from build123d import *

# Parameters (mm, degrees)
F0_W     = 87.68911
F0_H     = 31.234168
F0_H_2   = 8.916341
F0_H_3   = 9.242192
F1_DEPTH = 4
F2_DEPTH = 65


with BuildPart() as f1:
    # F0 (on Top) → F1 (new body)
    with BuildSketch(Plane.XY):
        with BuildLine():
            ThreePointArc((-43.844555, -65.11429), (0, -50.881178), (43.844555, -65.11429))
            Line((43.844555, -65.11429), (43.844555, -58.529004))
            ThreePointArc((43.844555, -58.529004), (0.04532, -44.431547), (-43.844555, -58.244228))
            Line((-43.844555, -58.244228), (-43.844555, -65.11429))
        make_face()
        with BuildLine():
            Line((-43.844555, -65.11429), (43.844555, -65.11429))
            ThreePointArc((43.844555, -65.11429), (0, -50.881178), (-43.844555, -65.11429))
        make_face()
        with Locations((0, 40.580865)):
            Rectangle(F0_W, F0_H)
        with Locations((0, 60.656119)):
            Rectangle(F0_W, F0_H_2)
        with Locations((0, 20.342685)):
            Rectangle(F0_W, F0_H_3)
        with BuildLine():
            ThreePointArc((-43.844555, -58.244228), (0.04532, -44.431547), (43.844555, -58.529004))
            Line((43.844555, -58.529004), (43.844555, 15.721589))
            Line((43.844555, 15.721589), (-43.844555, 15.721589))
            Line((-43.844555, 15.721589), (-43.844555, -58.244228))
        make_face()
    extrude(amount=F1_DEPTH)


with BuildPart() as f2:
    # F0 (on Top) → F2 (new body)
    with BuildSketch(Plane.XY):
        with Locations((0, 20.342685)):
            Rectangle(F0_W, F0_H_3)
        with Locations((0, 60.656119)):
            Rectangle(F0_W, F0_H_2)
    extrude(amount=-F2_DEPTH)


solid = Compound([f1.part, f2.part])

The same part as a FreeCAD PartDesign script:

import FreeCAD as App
import Part
import Sketcher
from FreeCAD import Vector
Q = App.Units.Quantity


def add_polygon(sketch, points):
    """Adds a closed chain of lines whose ends are joined by coincident constraints."""
    first, n = sketch.GeometryCount, len(points)
    for a, b in zip(points, points[1:] + points[:1]):
        sketch.addGeometry(Part.LineSegment(App.Vector(*a, 0), App.Vector(*b, 0)), False)
    for i in range(n):
        sketch.addConstraint(Sketcher.Constraint("Coincident", first + i, 2, first + (i + 1) % n, 1))

doc = App.newDocument("Part")
params = doc.addObject("Spreadsheet::Sheet", "Params")
for row, (alias, value) in enumerate([
    ("pad1_length", "4 mm"),
    ("pad2_length", "65 mm"),
], start=1):
    params.set(f"A{row}", alias)
    params.set(f"B{row}", "=" + value)
    params.setAlias(f"B{row}", alias)

body = doc.addObject("PartDesign::Body", "Body")

# Sketch on XY plane
sketch1 = doc.addObject("Sketcher::SketchObject", "Sketch")
body.addObject(sketch1)
sketch1.AttachmentSupport = (doc.XY_Plane, [""])
sketch1.MapMode = "FlatFace"
add_polygon(sketch1, [(-43.844555, -65.11429), (43.844555, -65.11429), (43.844555, 65.114289), (-43.844555, 65.114289)])  # lines 0-3
sketch1.addConstraint([
    Sketcher.Constraint("Horizontal", 0),
    Sketcher.Constraint("Vertical", 1),
    Sketcher.Constraint("Horizontal", 2),
    Sketcher.Constraint("Vertical", 3),
    Sketcher.Constraint("Symmetric", 0, 2, 2, 2, -1, 1),
    Sketcher.Constraint("DistanceX", 0, 1, 0, 2, Q("87.68911 mm")),
    Sketcher.Constraint("DistanceY", 1, 1, 1, 2, Q("130.228579 mm")),
])
pad1 = doc.addObject("PartDesign::Pad", "Pad")
body.addObject(pad1)
pad1.Profile = sketch1
pad1.setExpression("Length", "Params.pad1_length")
body2 = doc.addObject("PartDesign::Body", "Body001")
body2.AllowCompound = True

# Sketch on XY plane
sketch2 = doc.addObject("Sketcher::SketchObject", "Sketch001")
body2.addObject(sketch2)
sketch2.AttachmentSupport = (doc.getObject("XY_Plane001"), [""])
sketch2.MapMode = "FlatFace"
add_polygon(sketch2, [(-43.844555, 24.963781), (-43.844555, 15.721589), (43.844555, 15.721589), (43.844555, 24.963781)])  # lines 0-3
add_polygon(sketch2, [(-43.844555, 65.114289), (-43.844555, 56.197949), (43.844555, 56.197949), (43.844555, 65.114289)])  # lines 4-7
sketch2.addConstraint([
    Sketcher.Constraint("Vertical", 0),
    Sketcher.Constraint("Horizontal", 1),
    Sketcher.Constraint("Vertical", 2),
    Sketcher.Constraint("Horizontal", 3),
    Sketcher.Constraint("Vertical", 4),
    Sketcher.Constraint("Horizontal", 5),
    Sketcher.Constraint("Vertical", 6),
    Sketcher.Constraint("Horizontal", 7),
    Sketcher.Constraint("Vertical", 3, 2, 4, 2),
    Sketcher.Constraint("Vertical", 2, 2, 5, 2),
    Sketcher.Constraint("DistanceX", 1, 1, 1, 2, Q("87.68911 mm")),
    Sketcher.Constraint("DistanceY", 4, 2, 4, 1, Q("8.916341 mm")),
    Sketcher.Constraint("DistanceY", 1, 2, 6, 2, Q("49.3927 mm")),
    Sketcher.Constraint("DistanceY", 0, 2, 0, 1, Q("9.242192 mm")),
    Sketcher.Constraint("DistanceY", -1, 1, 0, 2, Q("15.721589 mm")),
    Sketcher.Constraint("DistanceX", 0, 2, -1, 1, Q("43.844555 mm")),
])
pad2 = doc.addObject("PartDesign::Pad", "Pad001")
body2.addObject(pad2)
pad2.Profile = sketch2
pad2.setExpression("Length", "Params.pad2_length")
pad2.Reversed = True

doc.recompute()
